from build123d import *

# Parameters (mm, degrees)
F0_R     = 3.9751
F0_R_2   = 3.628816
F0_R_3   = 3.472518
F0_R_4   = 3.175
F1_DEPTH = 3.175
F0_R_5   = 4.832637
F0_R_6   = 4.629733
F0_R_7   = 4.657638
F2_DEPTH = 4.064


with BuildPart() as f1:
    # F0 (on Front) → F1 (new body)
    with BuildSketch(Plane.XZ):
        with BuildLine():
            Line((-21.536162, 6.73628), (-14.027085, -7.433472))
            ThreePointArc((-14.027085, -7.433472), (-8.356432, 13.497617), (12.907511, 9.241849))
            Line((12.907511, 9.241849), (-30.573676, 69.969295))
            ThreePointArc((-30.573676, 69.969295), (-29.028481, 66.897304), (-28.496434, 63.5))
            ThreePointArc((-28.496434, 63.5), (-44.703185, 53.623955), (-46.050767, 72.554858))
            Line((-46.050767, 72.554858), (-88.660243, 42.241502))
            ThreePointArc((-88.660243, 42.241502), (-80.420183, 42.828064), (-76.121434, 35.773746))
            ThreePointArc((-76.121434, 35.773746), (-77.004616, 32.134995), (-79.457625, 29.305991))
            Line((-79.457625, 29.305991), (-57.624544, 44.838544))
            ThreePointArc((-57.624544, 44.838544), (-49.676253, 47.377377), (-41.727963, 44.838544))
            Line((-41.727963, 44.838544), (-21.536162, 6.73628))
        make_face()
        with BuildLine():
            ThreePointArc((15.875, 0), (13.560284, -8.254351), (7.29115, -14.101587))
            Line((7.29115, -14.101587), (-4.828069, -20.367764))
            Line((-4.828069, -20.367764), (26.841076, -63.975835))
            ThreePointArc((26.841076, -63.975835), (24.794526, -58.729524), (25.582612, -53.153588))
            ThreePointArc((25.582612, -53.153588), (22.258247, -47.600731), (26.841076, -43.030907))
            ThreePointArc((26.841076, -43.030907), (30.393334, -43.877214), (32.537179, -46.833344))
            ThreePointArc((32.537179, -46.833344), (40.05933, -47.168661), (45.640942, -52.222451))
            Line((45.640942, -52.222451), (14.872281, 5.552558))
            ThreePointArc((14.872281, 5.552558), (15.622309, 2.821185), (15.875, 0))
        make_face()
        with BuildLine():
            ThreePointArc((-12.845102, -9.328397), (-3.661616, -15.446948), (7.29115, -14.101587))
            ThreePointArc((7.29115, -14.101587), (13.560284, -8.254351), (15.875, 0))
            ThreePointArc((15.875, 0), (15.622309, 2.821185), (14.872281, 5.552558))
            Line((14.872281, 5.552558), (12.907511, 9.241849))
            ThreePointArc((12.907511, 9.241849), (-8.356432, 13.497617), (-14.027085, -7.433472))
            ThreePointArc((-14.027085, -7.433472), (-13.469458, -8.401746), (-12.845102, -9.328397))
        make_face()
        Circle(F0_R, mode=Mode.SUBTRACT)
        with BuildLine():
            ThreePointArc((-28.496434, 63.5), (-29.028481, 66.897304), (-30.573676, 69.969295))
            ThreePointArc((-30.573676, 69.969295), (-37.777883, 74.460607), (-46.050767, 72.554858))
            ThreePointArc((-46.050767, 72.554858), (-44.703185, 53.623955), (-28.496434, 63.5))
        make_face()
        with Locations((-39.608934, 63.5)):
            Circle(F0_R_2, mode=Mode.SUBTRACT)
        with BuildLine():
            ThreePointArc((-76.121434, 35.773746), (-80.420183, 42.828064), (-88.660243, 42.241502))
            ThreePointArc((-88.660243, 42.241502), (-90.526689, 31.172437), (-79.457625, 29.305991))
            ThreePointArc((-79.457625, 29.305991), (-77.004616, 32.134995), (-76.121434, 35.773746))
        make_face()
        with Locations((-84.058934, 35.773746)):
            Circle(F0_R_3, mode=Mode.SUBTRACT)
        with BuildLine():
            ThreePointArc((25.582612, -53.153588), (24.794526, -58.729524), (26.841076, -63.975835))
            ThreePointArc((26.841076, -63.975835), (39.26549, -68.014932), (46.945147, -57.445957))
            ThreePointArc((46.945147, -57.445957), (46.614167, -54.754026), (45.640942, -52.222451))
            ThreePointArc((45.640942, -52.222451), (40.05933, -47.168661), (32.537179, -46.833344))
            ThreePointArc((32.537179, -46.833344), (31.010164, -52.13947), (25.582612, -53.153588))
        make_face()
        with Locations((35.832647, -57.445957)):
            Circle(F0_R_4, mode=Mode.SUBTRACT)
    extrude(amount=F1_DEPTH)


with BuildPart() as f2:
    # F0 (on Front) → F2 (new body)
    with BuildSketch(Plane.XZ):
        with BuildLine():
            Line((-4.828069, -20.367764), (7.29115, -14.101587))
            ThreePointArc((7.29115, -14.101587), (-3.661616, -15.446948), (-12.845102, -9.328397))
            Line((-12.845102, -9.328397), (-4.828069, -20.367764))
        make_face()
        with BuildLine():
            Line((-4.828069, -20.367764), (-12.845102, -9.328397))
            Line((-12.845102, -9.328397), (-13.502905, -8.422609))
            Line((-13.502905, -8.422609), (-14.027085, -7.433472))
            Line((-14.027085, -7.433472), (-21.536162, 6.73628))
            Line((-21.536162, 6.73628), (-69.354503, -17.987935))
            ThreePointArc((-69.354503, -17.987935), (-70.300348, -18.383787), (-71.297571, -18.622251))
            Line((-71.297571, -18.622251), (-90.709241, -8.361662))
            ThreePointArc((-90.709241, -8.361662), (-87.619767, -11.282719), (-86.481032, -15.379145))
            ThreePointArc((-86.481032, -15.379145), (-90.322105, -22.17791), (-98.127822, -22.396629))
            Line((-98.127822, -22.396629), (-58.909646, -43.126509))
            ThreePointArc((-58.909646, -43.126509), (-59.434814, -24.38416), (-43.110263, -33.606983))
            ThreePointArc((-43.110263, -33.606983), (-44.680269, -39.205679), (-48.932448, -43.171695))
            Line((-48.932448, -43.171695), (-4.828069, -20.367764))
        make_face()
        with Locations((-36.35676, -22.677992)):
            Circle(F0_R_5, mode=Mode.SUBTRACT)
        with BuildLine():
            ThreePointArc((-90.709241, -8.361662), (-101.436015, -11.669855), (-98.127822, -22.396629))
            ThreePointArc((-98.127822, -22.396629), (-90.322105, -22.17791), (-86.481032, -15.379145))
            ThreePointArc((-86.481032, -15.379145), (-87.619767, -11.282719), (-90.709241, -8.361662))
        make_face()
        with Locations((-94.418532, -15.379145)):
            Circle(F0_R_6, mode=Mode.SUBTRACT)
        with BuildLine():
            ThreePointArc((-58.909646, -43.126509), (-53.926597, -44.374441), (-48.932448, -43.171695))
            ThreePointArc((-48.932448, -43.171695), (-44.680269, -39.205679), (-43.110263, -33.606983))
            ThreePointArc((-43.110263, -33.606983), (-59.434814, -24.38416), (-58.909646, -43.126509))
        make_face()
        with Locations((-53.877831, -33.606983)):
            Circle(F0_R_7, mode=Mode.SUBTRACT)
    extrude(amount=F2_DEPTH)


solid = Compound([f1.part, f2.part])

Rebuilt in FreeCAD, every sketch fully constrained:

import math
import FreeCAD as App
import Part
import Sketcher

V = App.Vector
Q = App.Units.Quantity

doc = App.newDocument("Part")
body = doc.addObject("PartDesign::Body", "Body")

# Sketch on XZ plane
sketch1 = body.newObject("Sketcher::SketchObject", "Sketch")
sketch1.AttachmentSupport = (doc.getObject("XZ_Plane"), [""])
sketch1.MapMode = "FlatFace"
sketch1.addGeometry(Part.LineSegment(V(-21.536162, 6.73628, 0), V(-14.027085, -7.433472, 0)), False)
sketch1.addGeometry(Part.ArcOfCircle(Part.Circle(V(-0.000072, -0.000049, 0), V(0, 0, 1), 15.874913), math.radians(-152.079262), math.radians(-144.012009)), False)
sketch1.addGeometry(Part.ArcOfCircle(Part.Circle(V(0, 0, 0), V(0, 0, 1), 15.875), math.radians(-144.012018), math.radians(-62.659016)), False)
sketch1.addGeometry(Part.LineSegment(V(7.29115, -14.101587, 0), V(-4.828069, -20.367764, 0)), False)
sketch1.addGeometry(Part.LineSegment(V(-4.828069, -20.367764, 0), V(26.841076, -63.975835, 0)), False)
sketch1.addGeometry(Part.ArcOfCircle(Part.Circle(V(35.832647, -57.445956, 0), V(0, 0, 1), 11.1125), math.radians(-144.012012), math.radians(-0.000004)), False)
sketch1.addGeometry(Part.ArcOfCircle(Part.Circle(V(35.832654, -57.445954, 0), V(0, 0, 1), 11.112493), math.radians(-0.000014), math.radians(28.037986)), False)
sketch1.addGeometry(Part.LineSegment(V(45.640942, -52.222451, 0), V(14.872281, 5.552558, 0)), False)
sketch1.addGeometry(Part.LineSegment(V(14.872281, 5.552558, 0), V(12.907511, 9.241849, 0)), False)
sketch1.addGeometry(Part.LineSegment(V(12.907511, 9.241849, 0), V(-30.573676, 69.969295, 0)), False)
sketch1.addGeometry(Part.ArcOfCircle(Part.Circle(V(-39.608934, 63.499998, 0), V(0, 0, 1), 11.112502), math.radians(35.602881), math.radians(125.42891)), False)
sketch1.addGeometry(Part.LineSegment(V(-46.050767, 72.554858, 0), V(-88.660243, 42.241502, 0)), False)
sketch1.addGeometry(Part.ArcOfCircle(Part.Circle(V(-84.058934, 35.773747, 0), V(0, 0, 1), 7.9375), math.radians(125.428917), math.radians(305.428915)), False)
sketch1.addGeometry(Part.LineSegment(V(-79.457625, 29.305991, 0), V(-57.624544, 44.838544, 0)), False)
sketch1.addGeometry(Part.ArcOfCircle(Part.Circle(V(-49.676254, 33.666157, 0), V(0, 0, 1), 13.71122), math.radians(54.571087), math.radians(125.428913)), False)
sketch1.addGeometry(Part.LineSegment(V(-41.727963, 44.838544, 0), V(-21.536162, 6.73628, 0)), False)
sketch1.addGeometry(Part.Circle(V(35.832647, -57.445957, 0), V(0, 0, 1), 3.175), False)
sketch1.addGeometry(Part.ArcOfCircle(Part.Circle(V(27.474775, -48.249257, 0), V(0, 0, 1), 5.256686), math.radians(96.923903), math.radians(248.902657)), False)
sketch1.addGeometry(Part.ArcOfCircle(Part.Circle(V(27.474774, -48.249257, 0), V(0, 0, 1), 5.256686), math.radians(15.62587), math.radians(96.923899)), False)
sketch1.addGeometry(Part.ArcOfCircle(Part.Circle(V(27.474774, -48.249256, 0), V(0, 0, 1), 5.256686), math.radians(-111.097329), math.radians(15.625853)), False)
sketch1.addGeometry(Part.Circle(V(0, 0, 0), V(0, 0, 1), 3.9751), False)
sketch1.addGeometry(Part.Circle(V(-84.058934, 35.773746, 0), V(0, 0, 1), 3.472518), False)
sketch1.addGeometry(Part.Circle(V(-39.608934, 63.5, 0), V(0, 0, 1), 3.628816), False)
sketch1.addConstraint(Sketcher.Constraint("Tangent", 0, 2, 1, 1))
sketch1.addConstraint(Sketcher.Constraint("Tangent", 1, 2, 2, 1))
sketch1.addConstraint(Sketcher.Constraint("Tangent", 2, 2, 3, 1))
sketch1.addConstraint(Sketcher.Constraint("Coincident", 3, 2, 4, 1))
sketch1.addConstraint(Sketcher.Constraint("Tangent", 4, 2, 5, 1))
sketch1.addConstraint(Sketcher.Constraint("Tangent", 5, 2, 6, 1))
sketch1.addConstraint(Sketcher.Constraint("Tangent", 6, 2, 7, 1))
sketch1.addConstraint(Sketcher.Constraint("Coincident", 7, 2, 8, 1))
sketch1.addConstraint(Sketcher.Constraint("Coincident", 8, 2, 9, 1))
sketch1.addConstraint(Sketcher.Constraint("Tangent", 9, 2, 10, 1))
sketch1.addConstraint(Sketcher.Constraint("Tangent", 10, 2, 11, 1))
sketch1.addConstraint(Sketcher.Constraint("Tangent", 11, 2, 12, 1))
sketch1.addConstraint(Sketcher.Constraint("Tangent", 12, 2, 13, 1))
sketch1.addConstraint(Sketcher.Constraint("Tangent", 13, 2, 14, 2))
sketch1.addConstraint(Sketcher.Constraint("Coincident", 14, 1, 15, 1))
sketch1.addConstraint(Sketcher.Constraint("Coincident", 15, 2, 0, 1))
sketch1.addConstraint(Sketcher.Constraint("Tangent", 17, 1, 18, 2))
sketch1.addConstraint(Sketcher.Constraint("Tangent", 18, 1, 19, 2))
sketch1.addConstraint(Sketcher.Constraint("Tangent", 19, 1, 17, 2))
sketch1.addConstraint(Sketcher.Constraint("Coincident", 2, 3, -1, 1))
sketch1.addConstraint(Sketcher.Constraint("Coincident", 20, 3, -1, 1))
sketch1.addConstraint(Sketcher.Constraint("Coincident", 16, 3, 5, 3))
sketch1.addConstraint(Sketcher.Constraint("Coincident", 21, 3, 12, 3))
sketch1.addConstraint(Sketcher.Constraint("Coincident", 22, 3, 10, 3))
sketch1.addConstraint(Sketcher.Constraint("Equal", 5, 10))
sketch1.addConstraint(Sketcher.Constraint("Parallel", 7, 8))
sketch1.addConstraint(Sketcher.Constraint("Parallel", 11, 13))
sketch1.addConstraint(Sketcher.Constraint("Parallel", 0, 15))
sketch1.addConstraint(Sketcher.Constraint("Horizontal", 16, 3, 5, 2))
sketch1.addConstraint(Sketcher.Constraint("Horizontal", 13, 2, 14, 1))
sketch1.addConstraint(Sketcher.Constraint("Vertical", 4, 2, 17, 1))
sketch1.addConstraint(Sketcher.Constraint("Diameter", 16, Q("0.25 in")))
sketch1.addConstraint(Sketcher.Constraint("Diameter", 20, Q("0.313 in")))
sketch1.addConstraint(Sketcher.Constraint("Radius", 2, Q("0.625 in")))
sketch1.addConstraint(Sketcher.Constraint("Radius", 5, Q("0.4375 in")))
sketch1.addConstraint(Sketcher.Constraint("Radius", 12, Q("0.3125 in")))
sketch1.addConstraint(Sketcher.Constraint("DistanceY", -1, 1, 10, 3, Q("2.4999999 in")))
sketch1.addConstraint(Sketcher.Constraint("DistanceX", 12, 3, 10, 3, Q("1.75 in")))
sketch1.addConstraint(Sketcher.Constraint("Radius", 14, Q("13.71122 mm")))
sketch1.addConstraint(Sketcher.Constraint("Diameter", 21, Q("6.945036 mm")))
sketch1.addConstraint(Sketcher.Constraint("Diameter", 22, Q("7.257632 mm")))
sketch1.addConstraint(Sketcher.Constraint("Radius", 1, Q("15.874913 mm")))
sketch1.addConstraint(Sketcher.Constraint("Radius", 6, Q("11.112493 mm")))
sketch1.addConstraint(Sketcher.Constraint("Radius", 17, Q("5.256686 mm")))
sketch1.addConstraint(Sketcher.Constraint("DistanceY", 3, 2, 2, 2, Q("0.2466999 in")))
sketch1.addConstraint(Sketcher.Constraint("DistanceX", 1, 2, -1, 1, Q("12.845102 mm")))
sketch1.addConstraint(Sketcher.Constraint("DistanceY", -1, 1, 11, 2, Q("42.241502 mm")))
sketch1.addConstraint(Sketcher.Constraint("DistanceY", 6, 3, 12, 3, Q("93.219701 mm")))
sketch1.addConstraint(Sketcher.Constraint("DistanceX", 14, 3, 5, 3, Q("85.5089 mm")))
sketch1.addConstraint(Sketcher.Constraint("DistanceY", 5, 3, 17, 3, Q("9.1967 mm")))
sketch1.addConstraint(Sketcher.Constraint("DistanceX", 4, 2, 18, 3, Q("0.633698 mm")))
sketch1.addConstraint(Sketcher.Constraint("DistanceY", 1, 3, 8, 2, Q("9.241898 mm")))
sketch1.addConstraint(Sketcher.Constraint("DistanceY", 14, 3, 10, 2, Q("38.888701 mm")))
sketch1.addConstraint(Sketcher.Constraint("Distance", 0, Q("16.036462 mm")))
sketch1.addConstraint(Sketcher.Constraint("Distance", 3, Q("13.64333 mm")))
sketch1.addConstraint(Sketcher.Constraint("Distance", 4, Q("53.894328 mm")))
sketch1.addConstraint(Sketcher.Constraint("Distance", 7, Q("65.457331 mm")))
sketch1.addConstraint(Sketcher.Constraint("Distance", 9, Q("74.68893 mm")))
sketch1.addConstraint(Sketcher.Constraint("DistanceX", -1, 1, 18, 1, Q("32.537179 mm")))
sketch1.addConstraint(Sketcher.Constraint("DistanceY", 19, 1, 18, 3, Q("4.904331 mm")))
pad1 = body.newObject("PartDesign::Pad", "Pad")
pad1.Profile = sketch1
pad1.Length = Q("0.125 in")
body2 = doc.addObject("PartDesign::Body", "Body001")

# Sketch on XZ plane
sketch2 = body2.newObject("Sketcher::SketchObject", "Sketch001")
sketch2.AttachmentSupport = (doc.getObject("XZ_Plane001"), [""])
sketch2.MapMode = "FlatFace"
sketch2.addGeometry(Part.LineSegment(V(-4.828069, -20.367764, 0), V(7.29115, -14.101587, 0)), False)
sketch2.addGeometry(Part.ArcOfCircle(Part.Circle(V(0, 0, 0), V(0, 0, 1), 15.875), math.radians(-144.012018), math.radians(-62.659016)), False)
sketch2.addGeometry(Part.LineSegment(V(-12.845102, -9.328397, 0), V(-13.502905, -8.422609, 0)), False)
sketch2.addGeometry(Part.LineSegment(V(-13.502905, -8.422609, 0), V(-14.027085, -7.433472, 0)), False)
sketch2.addGeometry(Part.LineSegment(V(-14.027085, -7.433472, 0), V(-21.536162, 6.73628, 0)), False)
sketch2.addGeometry(Part.LineSegment(V(-21.536162, 6.73628, 0), V(-69.354503, -17.987935, 0)), False)
sketch2.addGeometry(Part.ArcOfCircle(Part.Circle(V(-72.270969, -12.347281, 0), V(0, 0, 1), 6.35002), math.radians(-81.182332), math.radians(-62.659048)), False)
sketch2.addGeometry(Part.LineSegment(V(-71.297571, -18.622251, 0), V(-90.709241, -8.361662, 0)), False)
sketch2.addGeometry(Part.ArcOfCircle(Part.Circle(V(-94.418532, -15.379145, 0), V(0, 0, 1), 7.9375), math.radians(62.140035), math.radians(242.140035)), False)
sketch2.addGeometry(Part.LineSegment(V(-98.127822, -22.396629, 0), V(-58.909646, -43.126509, 0)), False)
sketch2.addGeometry(Part.ArcOfCircle(Part.Circle(V(-53.877831, -33.606982, 0), V(0, 0, 1), 10.76757), math.radians(-117.859954), math.radians(-62.659019)), False)
sketch2.addGeometry(Part.LineSegment(V(-48.932448, -43.171695, 0), V(-4.828069, -20.367764, 0)), False)
sketch2.addGeometry(Part.Circle(V(-53.877831, -33.606983, 0), V(0, 0, 1), 4.657638), False)
sketch2.addGeometry(Part.Circle(V(-94.418532, -15.379145, 0), V(0, 0, 1), 4.629733), False)
sketch2.addGeometry(Part.Circle(V(-36.35676, -22.677992, 0), V(0, 0, 1), 4.832637), False)
sketch2.addConstraint(Sketcher.Constraint("Coincident", 0, 2, 1, 2))
sketch2.addConstraint(Sketcher.Constraint("Coincident", 1, 1, 2, 1))
sketch2.addConstraint(Sketcher.Constraint("Coincident", 2, 2, 3, 1))
sketch2.addConstraint(Sketcher.Constraint("Coincident", 3, 2, 4, 1))
sketch2.addConstraint(Sketcher.Constraint("Coincident", 4, 2, 5, 1))
sketch2.addConstraint(Sketcher.Constraint("Coincident", 5, 2, 6, 2))
sketch2.addConstraint(Sketcher.Constraint("Coincident", 6, 1, 7, 1))
sketch2.addConstraint(Sketcher.Constraint("Coincident", 7, 2, 8, 1))
sketch2.addConstraint(Sketcher.Constraint("Coincident", 8, 2, 9, 1))
sketch2.addConstraint(Sketcher.Constraint("Coincident", 9, 2, 10, 1))
sketch2.addConstraint(Sketcher.Constraint("Coincident", 10, 2, 11, 1))
sketch2.addConstraint(Sketcher.Constraint("Coincident", 11, 2, 0, 1))
sketch2.addConstraint(Sketcher.Constraint("Coincident", 1, 3, -1, 1))
sketch2.addConstraint(Sketcher.Constraint("Coincident", 12, 3, 10, 3))
sketch2.addConstraint(Sketcher.Constraint("Coincident", 13, 3, 8, 3))
sketch2.addConstraint(Sketcher.Constraint("Radius", 1, Q("0.625 in")))
sketch2.addConstraint(Sketcher.Constraint("Radius", 8, Q("0.3125 in")))
sketch2.addConstraint(Sketcher.Constraint("Radius", 6, Q("6.35002 mm")))
sketch2.addConstraint(Sketcher.Constraint("Radius", 10, Q("10.76757 mm")))
sketch2.addConstraint(Sketcher.Constraint("Diameter", 12, Q("9.315276 mm")))
sketch2.addConstraint(Sketcher.Constraint("Diameter", 13, Q("9.259466 mm")))
sketch2.addConstraint(Sketcher.Constraint("Diameter", 14, Q("9.665274 mm")))
sketch2.addConstraint(Sketcher.Constraint("DistanceX", 8, 2, -1, 1, Q("3.8633001 in")))
sketch2.addConstraint(Sketcher.Constraint("DistanceX", 12, 3, 10, 2, Q("0.1947001 in")))
sketch2.addConstraint(Sketcher.Constraint("DistanceY", 11, 2, 0, 2, Q("0.2466999 in")))
sketch2.addConstraint(Sketcher.Constraint("DistanceX", 1, 1, -1, 1, Q("12.845102 mm")))
sketch2.addConstraint(Sketcher.Constraint("DistanceY", 10, 3, 6, 3, Q("21.259701 mm")))
sketch2.addConstraint(Sketcher.Constraint("DistanceX", 8, 3, 10, 3, Q("40.5407 mm")))
sketch2.addConstraint(Sketcher.Constraint("DistanceX", 6, 3, 6, 1, Q("0.973398 mm")))
sketch2.addConstraint(Sketcher.Constraint("DistanceX", 9, 2, 10, 2, Q("9.977198 mm")))
sketch2.addConstraint(Sketcher.Constraint("Distance", 0, Q("13.64333 mm")))
sketch2.addConstraint(Sketcher.Constraint("Distance", 4, Q("16.036462 mm")))
sketch2.addConstraint(Sketcher.Constraint("DistanceX", 6, 3, -1, 1, Q("72.270969 mm")))
sketch2.addConstraint(Sketcher.Constraint("DistanceY", 6, 3, -1, 1, Q("12.347281 mm")))
sketch2.addConstraint(Sketcher.Constraint("DistanceX", 8, 3, -1, 1, Q("94.418532 mm")))
sketch2.addConstraint(Sketcher.Constraint("DistanceX", 14, 3, -1, 1, Q("36.35676 mm")))
sketch2.addConstraint(Sketcher.Constraint("DistanceY", 14, 3, -1, 1, Q("22.677992 mm")))
sketch2.addConstraint(Sketcher.Constraint("DistanceX", -1, 1, 0, 2, Q("7.29115 mm")))
sketch2.addConstraint(Sketcher.Constraint("DistanceY", 2, 2, -1, 1, Q("8.422609 mm")))
sketch2.addConstraint(Sketcher.Constraint("DistanceY", -1, 1, 4, 2, Q("6.73628 mm")))
sketch2.addConstraint(Sketcher.Constraint("DistanceX", 7, 2, -1, 1, Q("90.709241 mm")))
sketch2.addConstraint(Sketcher.Constraint("DistanceY", 8, 2, -1, 1, Q("22.396629 mm")))
sketch2.addConstraint(Sketcher.Constraint("DistanceX", 3, 2, 2, 2, Q("0.52418 mm")))
sketch2.addConstraint(Sketcher.Constraint("DistanceY", 3, 2, 1, 3, Q("7.433472 mm")))
sketch2.addConstraint(Sketcher.Constraint("DistanceX", 4, 2, 1, 1, Q("8.69106 mm")))
sketch2.addConstraint(Sketcher.Constraint("DistanceX", 5, 2, 10, 3, Q("15.476672 mm")))
pad2 = body2.newObject("PartDesign::Pad", "Pad001")
pad2.Profile = sketch2
pad2.Length = Q("0.16 in")

doc.recompute()
